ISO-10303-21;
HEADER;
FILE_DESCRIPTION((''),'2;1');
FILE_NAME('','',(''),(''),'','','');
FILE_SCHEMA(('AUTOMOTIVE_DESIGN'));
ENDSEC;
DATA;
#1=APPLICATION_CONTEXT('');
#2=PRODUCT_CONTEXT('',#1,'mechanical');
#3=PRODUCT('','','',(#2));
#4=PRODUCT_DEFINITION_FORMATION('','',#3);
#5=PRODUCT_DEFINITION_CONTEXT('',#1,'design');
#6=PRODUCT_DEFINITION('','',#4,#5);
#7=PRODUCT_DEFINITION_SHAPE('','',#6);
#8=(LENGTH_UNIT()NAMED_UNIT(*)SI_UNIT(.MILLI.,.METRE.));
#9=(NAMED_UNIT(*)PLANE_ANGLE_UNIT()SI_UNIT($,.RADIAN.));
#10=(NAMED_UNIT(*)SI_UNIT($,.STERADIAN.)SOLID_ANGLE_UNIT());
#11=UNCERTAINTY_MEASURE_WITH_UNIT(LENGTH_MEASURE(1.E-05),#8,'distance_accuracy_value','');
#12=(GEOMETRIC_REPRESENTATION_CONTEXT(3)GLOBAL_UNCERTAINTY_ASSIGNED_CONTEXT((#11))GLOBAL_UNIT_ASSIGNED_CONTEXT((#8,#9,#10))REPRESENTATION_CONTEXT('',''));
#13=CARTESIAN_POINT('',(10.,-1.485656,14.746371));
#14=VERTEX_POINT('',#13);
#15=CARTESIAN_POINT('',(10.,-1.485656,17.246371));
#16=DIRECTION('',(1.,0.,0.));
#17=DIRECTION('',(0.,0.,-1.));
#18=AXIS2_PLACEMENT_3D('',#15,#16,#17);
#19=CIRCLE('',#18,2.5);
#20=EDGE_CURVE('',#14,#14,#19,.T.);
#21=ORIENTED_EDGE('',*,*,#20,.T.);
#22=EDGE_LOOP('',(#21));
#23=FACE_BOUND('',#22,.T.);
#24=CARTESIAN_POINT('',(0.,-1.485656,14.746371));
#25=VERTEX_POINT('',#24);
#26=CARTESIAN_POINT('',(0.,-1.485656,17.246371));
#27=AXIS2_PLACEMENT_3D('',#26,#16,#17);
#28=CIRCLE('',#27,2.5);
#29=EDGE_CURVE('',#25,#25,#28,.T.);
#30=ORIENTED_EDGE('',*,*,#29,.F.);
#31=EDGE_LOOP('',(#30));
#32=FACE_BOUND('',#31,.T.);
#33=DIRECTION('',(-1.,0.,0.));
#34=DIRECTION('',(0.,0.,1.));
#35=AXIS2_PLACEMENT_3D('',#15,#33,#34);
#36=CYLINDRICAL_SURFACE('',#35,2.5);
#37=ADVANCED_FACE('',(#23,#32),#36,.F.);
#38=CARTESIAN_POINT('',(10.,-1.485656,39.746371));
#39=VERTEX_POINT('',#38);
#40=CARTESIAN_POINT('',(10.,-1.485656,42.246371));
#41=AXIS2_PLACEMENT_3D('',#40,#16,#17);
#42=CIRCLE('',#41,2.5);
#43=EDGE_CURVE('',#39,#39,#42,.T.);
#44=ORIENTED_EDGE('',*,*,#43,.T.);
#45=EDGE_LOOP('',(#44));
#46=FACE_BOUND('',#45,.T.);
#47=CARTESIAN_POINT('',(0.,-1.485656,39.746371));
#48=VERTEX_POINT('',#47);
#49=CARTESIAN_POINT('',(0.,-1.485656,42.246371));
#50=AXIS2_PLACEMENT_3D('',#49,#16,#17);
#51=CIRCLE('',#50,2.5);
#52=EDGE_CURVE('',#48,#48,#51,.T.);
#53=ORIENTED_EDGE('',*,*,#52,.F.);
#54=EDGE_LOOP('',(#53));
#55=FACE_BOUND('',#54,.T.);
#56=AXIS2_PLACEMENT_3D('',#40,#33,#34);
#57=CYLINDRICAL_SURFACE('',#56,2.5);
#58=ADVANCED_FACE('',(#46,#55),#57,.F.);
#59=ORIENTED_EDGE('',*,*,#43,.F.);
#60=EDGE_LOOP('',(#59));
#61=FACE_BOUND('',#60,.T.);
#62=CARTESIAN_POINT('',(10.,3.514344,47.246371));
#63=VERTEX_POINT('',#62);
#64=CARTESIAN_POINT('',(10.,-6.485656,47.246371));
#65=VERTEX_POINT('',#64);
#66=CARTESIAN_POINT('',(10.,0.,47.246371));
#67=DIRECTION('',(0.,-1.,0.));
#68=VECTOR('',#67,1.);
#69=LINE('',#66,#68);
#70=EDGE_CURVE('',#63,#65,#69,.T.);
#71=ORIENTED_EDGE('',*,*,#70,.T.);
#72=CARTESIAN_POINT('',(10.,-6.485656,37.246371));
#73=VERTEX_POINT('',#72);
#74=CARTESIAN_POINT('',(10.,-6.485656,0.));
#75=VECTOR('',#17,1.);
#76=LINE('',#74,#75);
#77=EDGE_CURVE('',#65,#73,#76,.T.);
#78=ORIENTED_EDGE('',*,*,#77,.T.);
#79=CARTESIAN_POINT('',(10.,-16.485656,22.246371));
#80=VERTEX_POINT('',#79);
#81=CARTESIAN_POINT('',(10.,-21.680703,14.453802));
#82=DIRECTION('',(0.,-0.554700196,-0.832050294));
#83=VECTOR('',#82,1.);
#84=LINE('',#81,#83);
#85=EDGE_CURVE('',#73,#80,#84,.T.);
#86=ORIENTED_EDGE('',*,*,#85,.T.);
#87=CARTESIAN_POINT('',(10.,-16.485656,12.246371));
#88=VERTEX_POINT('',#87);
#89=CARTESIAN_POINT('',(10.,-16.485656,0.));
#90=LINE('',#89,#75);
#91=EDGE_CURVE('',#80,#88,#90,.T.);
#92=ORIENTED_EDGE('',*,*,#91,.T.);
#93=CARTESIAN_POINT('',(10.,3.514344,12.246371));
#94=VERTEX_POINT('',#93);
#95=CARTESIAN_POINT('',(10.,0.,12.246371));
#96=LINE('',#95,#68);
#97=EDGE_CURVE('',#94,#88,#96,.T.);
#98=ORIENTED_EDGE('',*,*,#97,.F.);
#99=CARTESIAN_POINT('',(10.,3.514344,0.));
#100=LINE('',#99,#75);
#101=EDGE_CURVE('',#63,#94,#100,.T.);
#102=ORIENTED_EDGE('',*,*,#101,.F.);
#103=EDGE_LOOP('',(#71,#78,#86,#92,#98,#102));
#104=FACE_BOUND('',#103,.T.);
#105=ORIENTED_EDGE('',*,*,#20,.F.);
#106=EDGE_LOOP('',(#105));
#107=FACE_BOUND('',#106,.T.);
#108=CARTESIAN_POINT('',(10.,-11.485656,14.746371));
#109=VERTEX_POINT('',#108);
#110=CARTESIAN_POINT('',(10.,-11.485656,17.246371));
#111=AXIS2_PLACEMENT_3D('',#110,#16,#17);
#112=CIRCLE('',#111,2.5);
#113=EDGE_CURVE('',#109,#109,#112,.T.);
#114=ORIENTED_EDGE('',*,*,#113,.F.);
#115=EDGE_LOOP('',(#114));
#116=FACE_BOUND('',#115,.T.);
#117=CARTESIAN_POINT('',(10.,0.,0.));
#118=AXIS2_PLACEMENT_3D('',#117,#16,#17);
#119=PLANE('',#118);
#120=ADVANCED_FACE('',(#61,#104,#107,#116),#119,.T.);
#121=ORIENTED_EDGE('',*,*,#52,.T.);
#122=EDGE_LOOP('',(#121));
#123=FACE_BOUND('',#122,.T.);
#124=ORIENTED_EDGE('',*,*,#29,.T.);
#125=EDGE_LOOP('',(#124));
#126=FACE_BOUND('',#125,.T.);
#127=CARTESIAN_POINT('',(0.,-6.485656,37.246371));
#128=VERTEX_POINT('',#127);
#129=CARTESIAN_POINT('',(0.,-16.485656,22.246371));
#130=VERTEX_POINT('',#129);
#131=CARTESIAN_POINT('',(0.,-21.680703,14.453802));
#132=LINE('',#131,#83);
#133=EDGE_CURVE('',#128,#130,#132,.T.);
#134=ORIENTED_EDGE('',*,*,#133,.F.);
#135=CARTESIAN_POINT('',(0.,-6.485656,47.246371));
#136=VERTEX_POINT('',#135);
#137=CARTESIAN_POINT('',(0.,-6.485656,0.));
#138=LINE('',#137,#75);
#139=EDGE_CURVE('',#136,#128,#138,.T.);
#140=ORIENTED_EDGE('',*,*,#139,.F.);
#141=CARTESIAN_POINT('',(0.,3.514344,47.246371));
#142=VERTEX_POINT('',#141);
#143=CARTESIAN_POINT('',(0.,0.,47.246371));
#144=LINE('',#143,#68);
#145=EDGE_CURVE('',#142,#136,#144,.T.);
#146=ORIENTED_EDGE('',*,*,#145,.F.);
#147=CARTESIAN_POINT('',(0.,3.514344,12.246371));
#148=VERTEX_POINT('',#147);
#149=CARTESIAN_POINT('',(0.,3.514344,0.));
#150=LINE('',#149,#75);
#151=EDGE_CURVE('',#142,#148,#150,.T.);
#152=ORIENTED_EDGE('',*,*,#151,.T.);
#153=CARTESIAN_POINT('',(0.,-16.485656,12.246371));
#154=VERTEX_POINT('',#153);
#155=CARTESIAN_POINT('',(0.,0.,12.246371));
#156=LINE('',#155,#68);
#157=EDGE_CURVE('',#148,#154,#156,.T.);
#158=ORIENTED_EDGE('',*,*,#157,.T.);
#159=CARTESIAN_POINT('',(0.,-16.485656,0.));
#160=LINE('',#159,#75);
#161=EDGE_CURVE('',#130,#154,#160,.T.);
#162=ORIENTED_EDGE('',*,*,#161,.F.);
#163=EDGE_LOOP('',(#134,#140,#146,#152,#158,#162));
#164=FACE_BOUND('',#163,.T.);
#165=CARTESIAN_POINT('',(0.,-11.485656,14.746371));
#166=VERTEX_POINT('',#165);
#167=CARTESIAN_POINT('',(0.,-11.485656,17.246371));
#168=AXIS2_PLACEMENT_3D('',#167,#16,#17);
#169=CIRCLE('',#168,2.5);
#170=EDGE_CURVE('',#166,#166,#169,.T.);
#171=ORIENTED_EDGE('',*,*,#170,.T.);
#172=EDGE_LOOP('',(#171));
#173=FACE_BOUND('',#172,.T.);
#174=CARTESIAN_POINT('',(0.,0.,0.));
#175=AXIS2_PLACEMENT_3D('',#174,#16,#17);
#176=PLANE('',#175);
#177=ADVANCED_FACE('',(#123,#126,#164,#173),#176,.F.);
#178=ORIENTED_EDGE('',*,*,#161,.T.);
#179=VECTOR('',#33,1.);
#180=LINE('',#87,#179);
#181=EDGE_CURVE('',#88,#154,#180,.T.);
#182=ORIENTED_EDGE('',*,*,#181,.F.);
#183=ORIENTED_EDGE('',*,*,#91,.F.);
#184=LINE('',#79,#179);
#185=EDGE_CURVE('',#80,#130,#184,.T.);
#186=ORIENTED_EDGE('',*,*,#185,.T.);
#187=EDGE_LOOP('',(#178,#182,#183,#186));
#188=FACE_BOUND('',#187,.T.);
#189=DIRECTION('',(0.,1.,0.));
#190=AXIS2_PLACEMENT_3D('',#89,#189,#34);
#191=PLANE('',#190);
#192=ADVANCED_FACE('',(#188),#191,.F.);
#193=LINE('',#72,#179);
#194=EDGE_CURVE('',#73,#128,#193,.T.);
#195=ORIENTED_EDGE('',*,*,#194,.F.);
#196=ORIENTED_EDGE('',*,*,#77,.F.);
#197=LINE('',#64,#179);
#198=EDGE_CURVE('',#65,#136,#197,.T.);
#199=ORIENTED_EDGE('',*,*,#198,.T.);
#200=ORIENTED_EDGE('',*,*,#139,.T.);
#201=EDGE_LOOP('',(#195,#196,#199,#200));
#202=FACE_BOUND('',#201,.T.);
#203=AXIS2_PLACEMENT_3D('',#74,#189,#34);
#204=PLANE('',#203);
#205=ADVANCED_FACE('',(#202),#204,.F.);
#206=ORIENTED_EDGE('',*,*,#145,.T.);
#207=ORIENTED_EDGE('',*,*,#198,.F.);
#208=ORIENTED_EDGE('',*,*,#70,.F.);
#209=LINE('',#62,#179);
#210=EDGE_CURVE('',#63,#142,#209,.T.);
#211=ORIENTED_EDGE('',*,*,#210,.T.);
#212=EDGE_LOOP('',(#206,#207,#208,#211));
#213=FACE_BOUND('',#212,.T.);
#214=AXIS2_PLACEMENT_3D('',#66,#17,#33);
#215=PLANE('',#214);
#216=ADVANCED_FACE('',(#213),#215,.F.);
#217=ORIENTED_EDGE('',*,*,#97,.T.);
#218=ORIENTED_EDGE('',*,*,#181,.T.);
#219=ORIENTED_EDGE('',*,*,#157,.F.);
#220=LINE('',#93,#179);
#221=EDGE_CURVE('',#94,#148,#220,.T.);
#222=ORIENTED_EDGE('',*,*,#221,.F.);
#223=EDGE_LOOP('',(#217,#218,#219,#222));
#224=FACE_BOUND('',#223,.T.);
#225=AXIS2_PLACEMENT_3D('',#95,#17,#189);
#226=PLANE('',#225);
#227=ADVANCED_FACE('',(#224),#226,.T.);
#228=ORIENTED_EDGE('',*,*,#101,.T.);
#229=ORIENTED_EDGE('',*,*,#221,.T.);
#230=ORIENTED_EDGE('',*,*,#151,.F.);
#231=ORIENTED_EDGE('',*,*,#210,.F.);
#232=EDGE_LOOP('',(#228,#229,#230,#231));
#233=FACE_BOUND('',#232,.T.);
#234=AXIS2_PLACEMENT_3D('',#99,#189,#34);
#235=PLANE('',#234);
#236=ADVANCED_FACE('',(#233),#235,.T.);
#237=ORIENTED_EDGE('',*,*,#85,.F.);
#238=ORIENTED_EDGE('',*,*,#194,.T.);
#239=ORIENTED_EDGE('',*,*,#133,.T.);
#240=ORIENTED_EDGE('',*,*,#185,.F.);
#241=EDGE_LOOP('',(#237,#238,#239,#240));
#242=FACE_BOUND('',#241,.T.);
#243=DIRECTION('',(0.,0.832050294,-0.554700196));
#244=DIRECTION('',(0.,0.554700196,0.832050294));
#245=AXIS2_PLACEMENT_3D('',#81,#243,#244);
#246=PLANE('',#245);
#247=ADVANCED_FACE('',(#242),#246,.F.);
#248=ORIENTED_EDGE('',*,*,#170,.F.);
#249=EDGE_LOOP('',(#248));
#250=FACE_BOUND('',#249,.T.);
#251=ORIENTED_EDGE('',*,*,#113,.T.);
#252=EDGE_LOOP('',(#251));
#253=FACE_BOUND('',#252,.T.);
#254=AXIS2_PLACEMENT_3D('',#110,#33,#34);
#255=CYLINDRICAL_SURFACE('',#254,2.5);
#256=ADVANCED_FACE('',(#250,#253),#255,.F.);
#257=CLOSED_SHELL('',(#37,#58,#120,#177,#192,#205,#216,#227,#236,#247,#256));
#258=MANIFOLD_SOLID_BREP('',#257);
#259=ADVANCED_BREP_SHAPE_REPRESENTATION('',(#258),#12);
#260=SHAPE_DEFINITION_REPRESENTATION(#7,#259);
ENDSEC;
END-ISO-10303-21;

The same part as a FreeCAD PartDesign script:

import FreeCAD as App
import Part
import Sketcher
from FreeCAD import Vector
Q = App.Units.Quantity

doc = App.newDocument("Part")
body = doc.addObject("PartDesign::Body", "Body")

sketch1 = body.newObject("Sketcher::SketchObject", "Sketch")
sketch1.AttachmentSupport = (doc.getObject("YZ_Plane"), [""])
sketch1.MapMode = "FlatFace"
sketch1.addGeometry([
    Part.LineSegment(Vector(3.514344, 47.246371, 0), Vector(-6.485656, 47.246371, 0)),
    Part.LineSegment(Vector(-6.485656, 47.246371, 0), Vector(-6.485656, 37.246371, 0)),
    Part.LineSegment(Vector(-6.485656, 37.246371, 0), Vector(-16.485656, 22.246371, 0)),
    Part.LineSegment(Vector(-16.485656, 22.246371, 0), Vector(-16.485656, 12.246371, 0)),
    Part.LineSegment(Vector(-16.485656, 12.246371, 0), Vector(3.514344, 12.246371, 0)),
    Part.LineSegment(Vector(3.514344, 12.246371, 0), Vector(3.514344, 47.246371, 0)),
    Part.Circle(Vector(-1.485656, 42.246371, 0), Vector(0, 0, 1), 2.5),
    Part.Circle(Vector(-1.485656, 17.246371, 0), Vector(0, 0, 1), 2.5),
    Part.Circle(Vector(-11.485656, 17.246371, 0), Vector(0, 0, 1), 2.5),
], False)
sketch1.addConstraint([
    Sketcher.Constraint("Coincident", 0, 2, 1, 1),
    Sketcher.Constraint("Coincident", 1, 2, 2, 1),
    Sketcher.Constraint("Coincident", 2, 2, 3, 1),
    Sketcher.Constraint("Coincident", 3, 2, 4, 1),
    Sketcher.Constraint("Coincident", 4, 2, 5, 1),
    Sketcher.Constraint("Coincident", 5, 2, 0, 1),
    Sketcher.Constraint("Horizontal", 0),
    Sketcher.Constraint("Vertical", 1),
    Sketcher.Constraint("Vertical", 3),
    Sketcher.Constraint("Horizontal", 4),
    Sketcher.Constraint("Vertical", 5),
    Sketcher.Constraint("Equal", 6, 7),
    Sketcher.Constraint("Equal", 7, 8),
    Sketcher.Constraint("Horizontal", 7, 3, 8, 3),
    Sketcher.Constraint("Vertical", 6, 3, 7, 3),
    Sketcher.Constraint("Equal", 0, 1),
    Sketcher.Constraint("Equal", 1, 3),
    Sketcher.Constraint("Diameter", 6, Q("5 mm")),
    Sketcher.Constraint("DistanceX", 0, 2, 0, 1, Q("10 mm")),
    Sketcher.Constraint("DistanceX", 4, 1, 4, 2, Q("20 mm")),
    Sketcher.Constraint("DistanceY", 5, 1, 5, 2, Q("35 mm")),
    Sketcher.Constraint("DistanceY", 7, 3, 6, 3, Q("25 mm")),
    Sketcher.Constraint("DistanceX", 8, 3, 7, 3, Q("10 mm")),
    Sketcher.Constraint("DistanceX", 0, 2, 6, 3, Q("5 mm")),
    Sketcher.Constraint("DistanceY", 6, 3, 0, 2, Q("5 mm")),
    Sketcher.Constraint("DistanceY", -1, 1, 6, 3, Q("42.246371 mm")),
    Sketcher.Constraint("DistanceX", 6, 3, -1, 1, Q("1.485656 mm")),
])
pad1 = body.newObject("PartDesign::Pad", "Pad")
pad1.Profile = sketch1
pad1.Length = 10

doc.recompute()
